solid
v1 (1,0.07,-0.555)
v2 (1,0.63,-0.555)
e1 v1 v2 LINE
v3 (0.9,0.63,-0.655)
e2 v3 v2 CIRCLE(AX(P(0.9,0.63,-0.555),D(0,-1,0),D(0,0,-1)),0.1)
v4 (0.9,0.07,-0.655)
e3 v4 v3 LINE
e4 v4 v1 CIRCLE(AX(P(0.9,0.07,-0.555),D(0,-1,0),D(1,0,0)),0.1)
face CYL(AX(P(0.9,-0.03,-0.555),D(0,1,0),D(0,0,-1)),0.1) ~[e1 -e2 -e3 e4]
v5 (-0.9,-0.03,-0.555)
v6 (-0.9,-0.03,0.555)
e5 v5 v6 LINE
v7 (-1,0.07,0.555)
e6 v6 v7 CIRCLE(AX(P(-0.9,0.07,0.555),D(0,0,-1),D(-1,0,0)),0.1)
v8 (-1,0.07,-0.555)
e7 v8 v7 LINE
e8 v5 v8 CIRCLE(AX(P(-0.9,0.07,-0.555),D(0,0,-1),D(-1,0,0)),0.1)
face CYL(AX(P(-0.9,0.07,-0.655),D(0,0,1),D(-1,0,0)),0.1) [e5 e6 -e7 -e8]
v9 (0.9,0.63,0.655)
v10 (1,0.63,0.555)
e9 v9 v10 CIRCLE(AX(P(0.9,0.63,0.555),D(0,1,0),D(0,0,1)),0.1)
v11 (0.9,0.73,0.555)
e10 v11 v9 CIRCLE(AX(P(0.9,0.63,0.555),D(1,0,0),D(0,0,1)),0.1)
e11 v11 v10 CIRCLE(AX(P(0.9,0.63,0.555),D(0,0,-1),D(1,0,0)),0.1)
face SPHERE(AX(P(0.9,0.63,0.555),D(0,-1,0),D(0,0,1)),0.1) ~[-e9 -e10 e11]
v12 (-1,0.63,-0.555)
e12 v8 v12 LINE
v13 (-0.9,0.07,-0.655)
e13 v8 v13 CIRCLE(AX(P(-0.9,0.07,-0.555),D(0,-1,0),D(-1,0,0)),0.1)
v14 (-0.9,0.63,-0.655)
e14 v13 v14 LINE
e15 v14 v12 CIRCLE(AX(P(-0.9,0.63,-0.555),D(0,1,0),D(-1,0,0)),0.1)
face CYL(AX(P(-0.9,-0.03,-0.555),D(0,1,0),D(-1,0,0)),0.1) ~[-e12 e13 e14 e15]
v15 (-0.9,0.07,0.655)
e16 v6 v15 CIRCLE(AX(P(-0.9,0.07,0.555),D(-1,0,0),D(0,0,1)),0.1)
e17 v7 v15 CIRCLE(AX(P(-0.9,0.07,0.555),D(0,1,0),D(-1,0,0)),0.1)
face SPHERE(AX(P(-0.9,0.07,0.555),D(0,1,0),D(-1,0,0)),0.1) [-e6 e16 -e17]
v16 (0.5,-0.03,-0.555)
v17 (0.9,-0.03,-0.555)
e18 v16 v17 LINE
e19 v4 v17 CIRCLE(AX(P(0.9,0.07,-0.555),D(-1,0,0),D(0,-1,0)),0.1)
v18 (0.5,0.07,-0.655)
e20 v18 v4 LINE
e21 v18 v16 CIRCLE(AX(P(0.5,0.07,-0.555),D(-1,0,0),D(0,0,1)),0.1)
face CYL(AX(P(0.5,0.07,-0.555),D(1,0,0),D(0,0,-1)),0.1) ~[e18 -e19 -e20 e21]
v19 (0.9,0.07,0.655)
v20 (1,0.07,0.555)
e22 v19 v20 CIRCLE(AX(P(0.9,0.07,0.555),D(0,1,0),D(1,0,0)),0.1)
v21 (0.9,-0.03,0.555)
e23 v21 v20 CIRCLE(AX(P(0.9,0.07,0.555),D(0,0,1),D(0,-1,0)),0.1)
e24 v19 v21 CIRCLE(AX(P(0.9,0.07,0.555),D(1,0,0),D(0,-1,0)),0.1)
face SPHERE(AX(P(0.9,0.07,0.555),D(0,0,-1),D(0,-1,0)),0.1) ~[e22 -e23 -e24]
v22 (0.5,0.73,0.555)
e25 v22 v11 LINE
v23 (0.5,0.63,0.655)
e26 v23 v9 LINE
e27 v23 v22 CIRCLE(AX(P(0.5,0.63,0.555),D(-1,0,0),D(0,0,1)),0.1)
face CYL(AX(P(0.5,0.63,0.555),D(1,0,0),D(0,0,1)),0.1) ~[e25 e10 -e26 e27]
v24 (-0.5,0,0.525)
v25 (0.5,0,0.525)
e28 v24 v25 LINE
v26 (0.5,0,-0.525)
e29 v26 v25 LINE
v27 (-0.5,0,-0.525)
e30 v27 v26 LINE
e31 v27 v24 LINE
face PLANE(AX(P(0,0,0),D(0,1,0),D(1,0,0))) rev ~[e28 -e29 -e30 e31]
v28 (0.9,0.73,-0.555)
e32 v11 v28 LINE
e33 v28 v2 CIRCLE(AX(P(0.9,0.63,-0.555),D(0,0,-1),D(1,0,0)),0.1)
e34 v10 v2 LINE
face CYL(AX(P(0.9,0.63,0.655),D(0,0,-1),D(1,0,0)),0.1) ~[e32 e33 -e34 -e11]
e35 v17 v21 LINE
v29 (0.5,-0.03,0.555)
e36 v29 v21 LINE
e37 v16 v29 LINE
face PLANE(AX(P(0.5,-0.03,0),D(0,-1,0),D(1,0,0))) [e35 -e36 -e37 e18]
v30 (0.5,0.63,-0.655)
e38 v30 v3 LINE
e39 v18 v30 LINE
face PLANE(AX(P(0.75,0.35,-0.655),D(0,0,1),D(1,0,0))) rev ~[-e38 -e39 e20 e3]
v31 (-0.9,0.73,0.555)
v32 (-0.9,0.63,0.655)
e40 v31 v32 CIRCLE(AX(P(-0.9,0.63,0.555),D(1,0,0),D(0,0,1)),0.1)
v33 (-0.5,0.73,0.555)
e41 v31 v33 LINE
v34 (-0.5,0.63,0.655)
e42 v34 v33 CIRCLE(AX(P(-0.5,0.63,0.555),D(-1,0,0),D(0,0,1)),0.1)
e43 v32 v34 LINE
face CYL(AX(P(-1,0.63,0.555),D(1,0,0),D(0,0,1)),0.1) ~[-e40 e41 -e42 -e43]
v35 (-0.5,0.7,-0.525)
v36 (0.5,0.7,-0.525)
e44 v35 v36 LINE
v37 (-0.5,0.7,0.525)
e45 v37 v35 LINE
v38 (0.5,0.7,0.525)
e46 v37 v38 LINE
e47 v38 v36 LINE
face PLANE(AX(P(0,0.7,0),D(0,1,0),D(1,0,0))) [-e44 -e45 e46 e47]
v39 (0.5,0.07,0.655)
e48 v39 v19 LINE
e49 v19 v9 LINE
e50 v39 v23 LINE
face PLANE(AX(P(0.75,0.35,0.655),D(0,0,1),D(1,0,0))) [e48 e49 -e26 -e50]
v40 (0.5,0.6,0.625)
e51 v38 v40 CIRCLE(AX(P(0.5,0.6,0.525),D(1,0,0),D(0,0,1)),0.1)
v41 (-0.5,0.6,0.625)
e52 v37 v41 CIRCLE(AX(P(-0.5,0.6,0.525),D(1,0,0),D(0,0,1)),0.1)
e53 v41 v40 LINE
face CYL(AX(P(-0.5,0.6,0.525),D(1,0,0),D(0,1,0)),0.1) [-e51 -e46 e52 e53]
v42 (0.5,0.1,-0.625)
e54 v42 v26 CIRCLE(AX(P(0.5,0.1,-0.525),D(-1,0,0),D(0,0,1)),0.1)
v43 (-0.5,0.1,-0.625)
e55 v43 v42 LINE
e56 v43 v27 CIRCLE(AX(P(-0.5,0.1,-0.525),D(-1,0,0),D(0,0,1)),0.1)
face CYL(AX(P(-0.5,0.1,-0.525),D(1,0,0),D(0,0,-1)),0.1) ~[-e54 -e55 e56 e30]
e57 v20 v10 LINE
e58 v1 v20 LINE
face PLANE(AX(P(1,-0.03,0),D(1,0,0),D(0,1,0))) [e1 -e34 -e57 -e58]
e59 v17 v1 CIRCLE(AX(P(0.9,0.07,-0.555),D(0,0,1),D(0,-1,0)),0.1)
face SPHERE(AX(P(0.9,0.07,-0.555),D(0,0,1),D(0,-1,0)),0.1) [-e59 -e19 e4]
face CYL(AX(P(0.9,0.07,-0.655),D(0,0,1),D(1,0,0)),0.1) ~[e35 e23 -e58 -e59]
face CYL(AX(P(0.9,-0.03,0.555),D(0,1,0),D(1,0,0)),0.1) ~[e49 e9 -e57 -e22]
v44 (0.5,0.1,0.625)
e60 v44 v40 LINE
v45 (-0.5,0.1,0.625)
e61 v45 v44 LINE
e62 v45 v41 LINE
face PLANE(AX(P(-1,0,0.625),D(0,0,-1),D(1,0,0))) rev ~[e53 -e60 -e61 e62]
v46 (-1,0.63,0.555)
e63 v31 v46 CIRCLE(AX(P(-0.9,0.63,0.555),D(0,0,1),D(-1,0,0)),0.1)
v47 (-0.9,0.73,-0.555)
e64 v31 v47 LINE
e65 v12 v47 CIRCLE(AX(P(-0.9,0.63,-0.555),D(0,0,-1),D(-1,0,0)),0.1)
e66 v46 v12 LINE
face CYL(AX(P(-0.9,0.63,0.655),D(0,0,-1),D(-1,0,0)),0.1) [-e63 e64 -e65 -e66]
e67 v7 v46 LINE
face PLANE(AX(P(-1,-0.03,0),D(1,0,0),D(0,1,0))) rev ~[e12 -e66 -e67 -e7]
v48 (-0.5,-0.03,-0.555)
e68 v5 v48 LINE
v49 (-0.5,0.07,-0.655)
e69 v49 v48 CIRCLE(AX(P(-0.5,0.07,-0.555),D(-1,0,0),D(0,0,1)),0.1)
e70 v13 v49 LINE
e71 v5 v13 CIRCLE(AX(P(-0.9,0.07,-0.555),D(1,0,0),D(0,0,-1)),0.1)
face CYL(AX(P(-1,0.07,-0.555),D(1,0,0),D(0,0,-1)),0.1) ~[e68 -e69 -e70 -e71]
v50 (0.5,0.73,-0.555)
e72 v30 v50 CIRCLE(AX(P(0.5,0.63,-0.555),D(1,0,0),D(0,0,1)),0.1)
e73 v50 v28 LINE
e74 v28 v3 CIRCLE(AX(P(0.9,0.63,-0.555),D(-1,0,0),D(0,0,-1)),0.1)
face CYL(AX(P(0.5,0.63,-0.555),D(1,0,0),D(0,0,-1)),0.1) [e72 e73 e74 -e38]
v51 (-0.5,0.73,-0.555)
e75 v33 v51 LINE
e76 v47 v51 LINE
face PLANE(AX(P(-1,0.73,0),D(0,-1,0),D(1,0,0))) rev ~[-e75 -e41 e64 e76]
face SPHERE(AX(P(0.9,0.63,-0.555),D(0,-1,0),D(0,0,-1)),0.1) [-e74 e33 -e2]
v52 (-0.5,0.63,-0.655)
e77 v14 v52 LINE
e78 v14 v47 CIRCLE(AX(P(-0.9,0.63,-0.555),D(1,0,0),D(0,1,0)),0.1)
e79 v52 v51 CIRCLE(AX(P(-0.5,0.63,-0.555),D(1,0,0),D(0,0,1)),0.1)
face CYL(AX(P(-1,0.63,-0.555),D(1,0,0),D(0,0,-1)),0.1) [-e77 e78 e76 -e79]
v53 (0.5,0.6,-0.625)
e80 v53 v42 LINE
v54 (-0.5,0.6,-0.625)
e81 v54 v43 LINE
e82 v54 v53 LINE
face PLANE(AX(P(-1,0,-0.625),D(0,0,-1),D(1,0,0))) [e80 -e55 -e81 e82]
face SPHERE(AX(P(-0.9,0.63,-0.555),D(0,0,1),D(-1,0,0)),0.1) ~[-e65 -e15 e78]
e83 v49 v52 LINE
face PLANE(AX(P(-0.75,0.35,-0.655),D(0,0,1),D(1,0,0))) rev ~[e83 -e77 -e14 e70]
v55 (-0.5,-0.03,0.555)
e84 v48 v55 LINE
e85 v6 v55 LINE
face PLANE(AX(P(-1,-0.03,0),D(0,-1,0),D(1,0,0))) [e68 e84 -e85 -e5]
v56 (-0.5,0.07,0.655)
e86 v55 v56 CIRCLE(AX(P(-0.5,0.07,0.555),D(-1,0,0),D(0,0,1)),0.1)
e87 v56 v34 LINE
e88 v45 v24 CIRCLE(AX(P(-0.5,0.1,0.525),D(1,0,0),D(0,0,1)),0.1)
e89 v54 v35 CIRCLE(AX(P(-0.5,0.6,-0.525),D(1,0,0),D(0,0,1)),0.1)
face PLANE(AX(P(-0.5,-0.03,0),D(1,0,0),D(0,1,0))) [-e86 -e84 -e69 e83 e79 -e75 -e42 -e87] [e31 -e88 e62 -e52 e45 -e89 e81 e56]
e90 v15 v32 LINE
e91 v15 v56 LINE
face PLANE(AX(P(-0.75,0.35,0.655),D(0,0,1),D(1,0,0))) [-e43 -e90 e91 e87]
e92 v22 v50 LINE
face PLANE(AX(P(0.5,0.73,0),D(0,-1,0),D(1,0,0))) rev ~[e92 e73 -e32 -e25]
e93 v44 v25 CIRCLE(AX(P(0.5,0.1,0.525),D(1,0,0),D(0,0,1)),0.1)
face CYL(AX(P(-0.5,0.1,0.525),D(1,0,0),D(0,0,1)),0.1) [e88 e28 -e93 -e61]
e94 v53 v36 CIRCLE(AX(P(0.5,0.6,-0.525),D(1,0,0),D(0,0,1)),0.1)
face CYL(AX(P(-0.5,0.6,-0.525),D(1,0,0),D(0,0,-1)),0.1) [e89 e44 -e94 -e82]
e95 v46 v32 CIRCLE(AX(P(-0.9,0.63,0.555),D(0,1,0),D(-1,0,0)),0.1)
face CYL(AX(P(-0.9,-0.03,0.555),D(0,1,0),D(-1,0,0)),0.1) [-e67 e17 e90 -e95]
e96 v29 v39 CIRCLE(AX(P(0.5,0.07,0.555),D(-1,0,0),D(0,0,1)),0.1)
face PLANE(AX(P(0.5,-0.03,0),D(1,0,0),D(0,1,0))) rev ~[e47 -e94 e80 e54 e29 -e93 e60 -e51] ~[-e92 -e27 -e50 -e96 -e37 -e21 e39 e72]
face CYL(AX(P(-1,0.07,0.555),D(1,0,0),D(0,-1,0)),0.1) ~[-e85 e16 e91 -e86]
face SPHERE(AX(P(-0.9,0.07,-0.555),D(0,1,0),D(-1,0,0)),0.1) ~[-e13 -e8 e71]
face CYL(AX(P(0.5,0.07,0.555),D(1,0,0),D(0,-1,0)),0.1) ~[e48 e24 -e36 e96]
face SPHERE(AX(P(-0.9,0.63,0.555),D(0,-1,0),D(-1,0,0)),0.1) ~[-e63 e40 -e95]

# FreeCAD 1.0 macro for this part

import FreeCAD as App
import Part
import Sketcher

V = App.Vector


def edges_at(feature, points):
    """Names of the edges that pass closest to the given points."""
    edges = feature.Shape.Edges
    near = lambda p: min(range(len(edges)), key=lambda i: edges[i].distToShape(Part.Vertex(*p))[0])
    return sorted({f"Edge{near(p) + 1}" for p in points})

doc = App.newDocument("Part")
body = doc.addObject("PartDesign::Body", "Body")

# Sketch on XZ plane
sketch1 = body.newObject("Sketcher::SketchObject", "Sketch")
sketch1.AttachmentSupport = (doc.getObject("XZ_Plane"), [""])
sketch1.MapMode = "FlatFace"
sketch1.addGeometry(Part.LineSegment(V(-1, -0.6, 0), V(-1, 0.6, 0)), False)
sketch1.addGeometry(Part.LineSegment(V(-1, 0.6, 0), V(1, 0.6, 0)), False)
sketch1.addGeometry(Part.LineSegment(V(1, 0.6, 0), V(1, -0.6, 0)), False)
sketch1.addGeometry(Part.LineSegment(V(1, -0.6, 0), V(-1, -0.6, 0)), False)
sketch1.addConstraint(Sketcher.Constraint("Coincident", 0, 2, 1, 1))
sketch1.addConstraint(Sketcher.Constraint("Coincident", 1, 2, 2, 1))
sketch1.addConstraint(Sketcher.Constraint("Coincident", 2, 2, 3, 1))
sketch1.addConstraint(Sketcher.Constraint("Coincident", 3, 2, 0, 1))
sketch1.addConstraint(Sketcher.Constraint("Vertical", 0))
sketch1.addConstraint(Sketcher.Constraint("Horizontal", 1))
sketch1.addConstraint(Sketcher.Constraint("Vertical", 2))
sketch1.addConstraint(Sketcher.Constraint("Horizontal", 3))
sketch1.addConstraint(Sketcher.Constraint("Symmetric", 0, 2, 2, 2, -1, 1))
sketch1.addConstraint(Sketcher.Constraint("DistanceX", 1, 1, 1, 2, 2.0))
sketch1.addConstraint(Sketcher.Constraint("DistanceY", 0, 1, 0, 2, 1.25))
pad1 = body.newObject("PartDesign::Pad", "Pad")
pad1.Profile = sketch1
pad1.Length = 0.7
pad1.Reversed = True

# Sketch on XY plane
sketch2 = body.newObject("Sketcher::SketchObject", "Sketch001")
sketch2.AttachmentSupport = (doc.getObject("XY_Plane"), [""])
sketch2.MapMode = "FlatFace"
sketch2.addGeometry(Part.LineSegment(V(-1, 0.7, 0), V(-1, 0, 0)), False)
sketch2.addGeometry(Part.LineSegment(V(-1, 0, 0), V(-0.5, 0, 0)), False)
sketch2.addGeometry(Part.LineSegment(V(-0.5, 0, 0), V(-0.5, 0.7, 0)), False)
sketch2.addGeometry(Part.LineSegment(V(-0.5, 0.7, 0), V(-1, 0.7, 0)), False)
sketch2.addGeometry(Part.LineSegment(V(0.5, 0.7, 0), V(0.5, 0, 0)), False)
sketch2.addGeometry(Part.LineSegment(V(0.5, 0, 0), V(1, 0, 0)), False)
sketch2.addGeometry(Part.LineSegment(V(1, 0, 0), V(1, 0.7, 0)), False)
sketch2.addGeometry(Part.LineSegment(V(1, 0.7, 0), V(0.5, 0.7, 0)), False)
sketch2.addConstraint(Sketcher.Constraint("Coincident", 0, 2, 1, 1))
sketch2.addConstraint(Sketcher.Constraint("Coincident", 1, 2, 2, 1))
sketch2.addConstraint(Sketcher.Constraint("Coincident", 2, 2, 3, 1))
sketch2.addConstraint(Sketcher.Constraint("Coincident", 3, 2, 0, 1))
sketch2.addConstraint(Sketcher.Constraint("Coincident", 4, 2, 5, 1))
sketch2.addConstraint(Sketcher.Constraint("Coincident", 5, 2, 6, 1))
sketch2.addConstraint(Sketcher.Constraint("Coincident", 6, 2, 7, 1))
sketch2.addConstraint(Sketcher.Constraint("Coincident", 7, 2, 4, 1))
sketch2.addConstraint(Sketcher.Constraint("Vertical", 0))
sketch2.addConstraint(Sketcher.Constraint("Horizontal", 1))
sketch2.addConstraint(Sketcher.Constraint("Vertical", 2))
sketch2.addConstraint(Sketcher.Constraint("Horizontal", 3))
sketch2.addConstraint(Sketcher.Constraint("Vertical", 4))
sketch2.addConstraint(Sketcher.Constraint("Horizontal", 5))
sketch2.addConstraint(Sketcher.Constraint("Vertical", 6))
sketch2.addConstraint(Sketcher.Constraint("Horizontal", 7))
sketch2.addConstraint(Sketcher.Constraint("Symmetric", 1, 2, 4, 2, -2))
sketch2.addConstraint(Sketcher.Constraint("Symmetric", 3, 2, 6, 2, -2))
sketch2.addConstraint(Sketcher.Constraint("DistanceX", 1, 1, 1, 2, 0.5))
sketch2.addConstraint(Sketcher.Constraint("DistanceX", 0, 2, -1, 1, 1.0))
sketch2.addConstraint(Sketcher.Constraint("DistanceY", 0, 2, 0, 1, 0.76))
sketch2.addConstraint(Sketcher.Constraint("DistanceY", 0, 2, -1, 1, 0.03))
pad2 = body.newObject("PartDesign::Pad", "Pad001")
pad2.Profile = sketch2
pad2.Type = "TwoLengths"
pad2.Length = 0.655
pad2.Length2 = 0.655
doc.recompute()

fillet = body.newObject("PartDesign::Fillet", "Fillet")
fillet.Base = (pad2, edges_at(pad2, [
    (-1, 0.35, 0.655),
    (-1, 0.73, 0),
    (-1, 0.35, -0.655),
    (-1, -0.03, 0),
    (-0.75, 0.73, 0.655),
    (-0.75, -0.03, 0.655),
    (-0.75, 0.73, -0.655),
    (-0.75, -0.03, -0.655),
    (0, 0, 0.625),
    (0, 0, -0.625),
    (0, 0.7, 0.625),
    (0, 0.7, -0.625),
    (1, -0.03, 0),
    (0.75, -0.03, 0.655),
    (0.75, -0.03, -0.655),
    (1, 0.35, 0.655),
    (0.75, 0.73, 0.655),
    (1, 0.35, -0.655),
    (0.75, 0.73, -0.655),
    (1, 0.73, 0),
]))
fillet.Radius = 0.1

doc.recompute()
